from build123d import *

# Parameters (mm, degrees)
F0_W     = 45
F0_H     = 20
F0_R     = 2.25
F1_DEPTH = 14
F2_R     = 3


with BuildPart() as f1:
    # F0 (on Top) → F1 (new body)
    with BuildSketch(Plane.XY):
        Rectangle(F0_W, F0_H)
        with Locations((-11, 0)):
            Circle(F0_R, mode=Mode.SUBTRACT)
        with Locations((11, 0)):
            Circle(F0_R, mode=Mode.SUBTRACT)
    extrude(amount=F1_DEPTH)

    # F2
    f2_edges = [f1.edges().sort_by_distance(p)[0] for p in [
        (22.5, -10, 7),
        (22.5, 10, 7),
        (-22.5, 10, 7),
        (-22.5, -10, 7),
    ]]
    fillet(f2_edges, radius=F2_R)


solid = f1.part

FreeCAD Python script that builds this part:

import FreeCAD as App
import Part
import Sketcher


def edges_at(feature, points):
    """Names of the edges that pass closest to the given points."""
    edges = feature.Shape.Edges
    near = lambda p: min(range(len(edges)), key=lambda i: edges[i].distToShape(Part.Vertex(*p))[0])
    return sorted({f"Edge{near(p) + 1}" for p in points})

doc = App.newDocument("Part")
body = doc.addObject("PartDesign::Body", "Body")

sketch1 = body.newObject("Sketcher::SketchObject", "Sketch")
sketch1.AttachmentSupport = (doc.getObject("XY_Plane"), [""])
sketch1.MapMode = "FlatFace"
sketch1.addGeometry([
    Part.LineSegment(App.Vector(-22.5, 10, 0), App.Vector(-22.5, -10, 0)),
    Part.LineSegment(App.Vector(-22.5, -10, 0), App.Vector(22.5, -10, 0)),
    Part.LineSegment(App.Vector(22.5, -10, 0), App.Vector(22.5, 10, 0)),
    Part.LineSegment(App.Vector(22.5, 10, 0), App.Vector(-22.5, 10, 0)),
    Part.Circle(App.Vector(-11, 0, 0), App.Vector(0, 0, 1), 2.2),
    Part.Circle(App.Vector(11, 0, 0), App.Vector(0, 0, 1), 2.2),
], False)
sketch1.addConstraint([
    Sketcher.Constraint("Coincident", 0, 2, 1, 1),
    Sketcher.Constraint("Coincident", 1, 2, 2, 1),
    Sketcher.Constraint("Coincident", 2, 2, 3, 1),
    Sketcher.Constraint("Coincident", 3, 2, 0, 1),
    Sketcher.Constraint("Vertical", 0),
    Sketcher.Constraint("Horizontal", 1),
    Sketcher.Constraint("Vertical", 2),
    Sketcher.Constraint("Horizontal", 3),
    Sketcher.Constraint("Equal", 4, 5),
    Sketcher.Constraint("Symmetric", 4, 3, 5, 3, -1, 1),
    Sketcher.Constraint("Symmetric", 0, 2, 2, 2, -1, 1),
    Sketcher.Constraint("PointOnObject", 4, 3, -1),
    Sketcher.Constraint("Diameter", 4, 4.5),
    Sketcher.Constraint("DistanceX", 1, 1, 1, 2, 45.0),
    Sketcher.Constraint("DistanceY", 0, 2, 0, 1, 20.0),
    Sketcher.Constraint("DistanceX", 4, 3, -1, 1, 11.0),
])
pad1 = body.newObject("PartDesign::Pad", "Pad")
pad1.Profile = sketch1
pad1.Length = 14
doc.recompute()

fillet = body.newObject("PartDesign::Fillet", "Fillet")
fillet.Base = (pad1, edges_at(pad1, [
    (22.5, -10, 7),
    (22.5, 10, 7),
    (-22.5, 10, 7),
    (-22.5, -10, 7),
]))
fillet.Radius = 3

doc.recompute()
